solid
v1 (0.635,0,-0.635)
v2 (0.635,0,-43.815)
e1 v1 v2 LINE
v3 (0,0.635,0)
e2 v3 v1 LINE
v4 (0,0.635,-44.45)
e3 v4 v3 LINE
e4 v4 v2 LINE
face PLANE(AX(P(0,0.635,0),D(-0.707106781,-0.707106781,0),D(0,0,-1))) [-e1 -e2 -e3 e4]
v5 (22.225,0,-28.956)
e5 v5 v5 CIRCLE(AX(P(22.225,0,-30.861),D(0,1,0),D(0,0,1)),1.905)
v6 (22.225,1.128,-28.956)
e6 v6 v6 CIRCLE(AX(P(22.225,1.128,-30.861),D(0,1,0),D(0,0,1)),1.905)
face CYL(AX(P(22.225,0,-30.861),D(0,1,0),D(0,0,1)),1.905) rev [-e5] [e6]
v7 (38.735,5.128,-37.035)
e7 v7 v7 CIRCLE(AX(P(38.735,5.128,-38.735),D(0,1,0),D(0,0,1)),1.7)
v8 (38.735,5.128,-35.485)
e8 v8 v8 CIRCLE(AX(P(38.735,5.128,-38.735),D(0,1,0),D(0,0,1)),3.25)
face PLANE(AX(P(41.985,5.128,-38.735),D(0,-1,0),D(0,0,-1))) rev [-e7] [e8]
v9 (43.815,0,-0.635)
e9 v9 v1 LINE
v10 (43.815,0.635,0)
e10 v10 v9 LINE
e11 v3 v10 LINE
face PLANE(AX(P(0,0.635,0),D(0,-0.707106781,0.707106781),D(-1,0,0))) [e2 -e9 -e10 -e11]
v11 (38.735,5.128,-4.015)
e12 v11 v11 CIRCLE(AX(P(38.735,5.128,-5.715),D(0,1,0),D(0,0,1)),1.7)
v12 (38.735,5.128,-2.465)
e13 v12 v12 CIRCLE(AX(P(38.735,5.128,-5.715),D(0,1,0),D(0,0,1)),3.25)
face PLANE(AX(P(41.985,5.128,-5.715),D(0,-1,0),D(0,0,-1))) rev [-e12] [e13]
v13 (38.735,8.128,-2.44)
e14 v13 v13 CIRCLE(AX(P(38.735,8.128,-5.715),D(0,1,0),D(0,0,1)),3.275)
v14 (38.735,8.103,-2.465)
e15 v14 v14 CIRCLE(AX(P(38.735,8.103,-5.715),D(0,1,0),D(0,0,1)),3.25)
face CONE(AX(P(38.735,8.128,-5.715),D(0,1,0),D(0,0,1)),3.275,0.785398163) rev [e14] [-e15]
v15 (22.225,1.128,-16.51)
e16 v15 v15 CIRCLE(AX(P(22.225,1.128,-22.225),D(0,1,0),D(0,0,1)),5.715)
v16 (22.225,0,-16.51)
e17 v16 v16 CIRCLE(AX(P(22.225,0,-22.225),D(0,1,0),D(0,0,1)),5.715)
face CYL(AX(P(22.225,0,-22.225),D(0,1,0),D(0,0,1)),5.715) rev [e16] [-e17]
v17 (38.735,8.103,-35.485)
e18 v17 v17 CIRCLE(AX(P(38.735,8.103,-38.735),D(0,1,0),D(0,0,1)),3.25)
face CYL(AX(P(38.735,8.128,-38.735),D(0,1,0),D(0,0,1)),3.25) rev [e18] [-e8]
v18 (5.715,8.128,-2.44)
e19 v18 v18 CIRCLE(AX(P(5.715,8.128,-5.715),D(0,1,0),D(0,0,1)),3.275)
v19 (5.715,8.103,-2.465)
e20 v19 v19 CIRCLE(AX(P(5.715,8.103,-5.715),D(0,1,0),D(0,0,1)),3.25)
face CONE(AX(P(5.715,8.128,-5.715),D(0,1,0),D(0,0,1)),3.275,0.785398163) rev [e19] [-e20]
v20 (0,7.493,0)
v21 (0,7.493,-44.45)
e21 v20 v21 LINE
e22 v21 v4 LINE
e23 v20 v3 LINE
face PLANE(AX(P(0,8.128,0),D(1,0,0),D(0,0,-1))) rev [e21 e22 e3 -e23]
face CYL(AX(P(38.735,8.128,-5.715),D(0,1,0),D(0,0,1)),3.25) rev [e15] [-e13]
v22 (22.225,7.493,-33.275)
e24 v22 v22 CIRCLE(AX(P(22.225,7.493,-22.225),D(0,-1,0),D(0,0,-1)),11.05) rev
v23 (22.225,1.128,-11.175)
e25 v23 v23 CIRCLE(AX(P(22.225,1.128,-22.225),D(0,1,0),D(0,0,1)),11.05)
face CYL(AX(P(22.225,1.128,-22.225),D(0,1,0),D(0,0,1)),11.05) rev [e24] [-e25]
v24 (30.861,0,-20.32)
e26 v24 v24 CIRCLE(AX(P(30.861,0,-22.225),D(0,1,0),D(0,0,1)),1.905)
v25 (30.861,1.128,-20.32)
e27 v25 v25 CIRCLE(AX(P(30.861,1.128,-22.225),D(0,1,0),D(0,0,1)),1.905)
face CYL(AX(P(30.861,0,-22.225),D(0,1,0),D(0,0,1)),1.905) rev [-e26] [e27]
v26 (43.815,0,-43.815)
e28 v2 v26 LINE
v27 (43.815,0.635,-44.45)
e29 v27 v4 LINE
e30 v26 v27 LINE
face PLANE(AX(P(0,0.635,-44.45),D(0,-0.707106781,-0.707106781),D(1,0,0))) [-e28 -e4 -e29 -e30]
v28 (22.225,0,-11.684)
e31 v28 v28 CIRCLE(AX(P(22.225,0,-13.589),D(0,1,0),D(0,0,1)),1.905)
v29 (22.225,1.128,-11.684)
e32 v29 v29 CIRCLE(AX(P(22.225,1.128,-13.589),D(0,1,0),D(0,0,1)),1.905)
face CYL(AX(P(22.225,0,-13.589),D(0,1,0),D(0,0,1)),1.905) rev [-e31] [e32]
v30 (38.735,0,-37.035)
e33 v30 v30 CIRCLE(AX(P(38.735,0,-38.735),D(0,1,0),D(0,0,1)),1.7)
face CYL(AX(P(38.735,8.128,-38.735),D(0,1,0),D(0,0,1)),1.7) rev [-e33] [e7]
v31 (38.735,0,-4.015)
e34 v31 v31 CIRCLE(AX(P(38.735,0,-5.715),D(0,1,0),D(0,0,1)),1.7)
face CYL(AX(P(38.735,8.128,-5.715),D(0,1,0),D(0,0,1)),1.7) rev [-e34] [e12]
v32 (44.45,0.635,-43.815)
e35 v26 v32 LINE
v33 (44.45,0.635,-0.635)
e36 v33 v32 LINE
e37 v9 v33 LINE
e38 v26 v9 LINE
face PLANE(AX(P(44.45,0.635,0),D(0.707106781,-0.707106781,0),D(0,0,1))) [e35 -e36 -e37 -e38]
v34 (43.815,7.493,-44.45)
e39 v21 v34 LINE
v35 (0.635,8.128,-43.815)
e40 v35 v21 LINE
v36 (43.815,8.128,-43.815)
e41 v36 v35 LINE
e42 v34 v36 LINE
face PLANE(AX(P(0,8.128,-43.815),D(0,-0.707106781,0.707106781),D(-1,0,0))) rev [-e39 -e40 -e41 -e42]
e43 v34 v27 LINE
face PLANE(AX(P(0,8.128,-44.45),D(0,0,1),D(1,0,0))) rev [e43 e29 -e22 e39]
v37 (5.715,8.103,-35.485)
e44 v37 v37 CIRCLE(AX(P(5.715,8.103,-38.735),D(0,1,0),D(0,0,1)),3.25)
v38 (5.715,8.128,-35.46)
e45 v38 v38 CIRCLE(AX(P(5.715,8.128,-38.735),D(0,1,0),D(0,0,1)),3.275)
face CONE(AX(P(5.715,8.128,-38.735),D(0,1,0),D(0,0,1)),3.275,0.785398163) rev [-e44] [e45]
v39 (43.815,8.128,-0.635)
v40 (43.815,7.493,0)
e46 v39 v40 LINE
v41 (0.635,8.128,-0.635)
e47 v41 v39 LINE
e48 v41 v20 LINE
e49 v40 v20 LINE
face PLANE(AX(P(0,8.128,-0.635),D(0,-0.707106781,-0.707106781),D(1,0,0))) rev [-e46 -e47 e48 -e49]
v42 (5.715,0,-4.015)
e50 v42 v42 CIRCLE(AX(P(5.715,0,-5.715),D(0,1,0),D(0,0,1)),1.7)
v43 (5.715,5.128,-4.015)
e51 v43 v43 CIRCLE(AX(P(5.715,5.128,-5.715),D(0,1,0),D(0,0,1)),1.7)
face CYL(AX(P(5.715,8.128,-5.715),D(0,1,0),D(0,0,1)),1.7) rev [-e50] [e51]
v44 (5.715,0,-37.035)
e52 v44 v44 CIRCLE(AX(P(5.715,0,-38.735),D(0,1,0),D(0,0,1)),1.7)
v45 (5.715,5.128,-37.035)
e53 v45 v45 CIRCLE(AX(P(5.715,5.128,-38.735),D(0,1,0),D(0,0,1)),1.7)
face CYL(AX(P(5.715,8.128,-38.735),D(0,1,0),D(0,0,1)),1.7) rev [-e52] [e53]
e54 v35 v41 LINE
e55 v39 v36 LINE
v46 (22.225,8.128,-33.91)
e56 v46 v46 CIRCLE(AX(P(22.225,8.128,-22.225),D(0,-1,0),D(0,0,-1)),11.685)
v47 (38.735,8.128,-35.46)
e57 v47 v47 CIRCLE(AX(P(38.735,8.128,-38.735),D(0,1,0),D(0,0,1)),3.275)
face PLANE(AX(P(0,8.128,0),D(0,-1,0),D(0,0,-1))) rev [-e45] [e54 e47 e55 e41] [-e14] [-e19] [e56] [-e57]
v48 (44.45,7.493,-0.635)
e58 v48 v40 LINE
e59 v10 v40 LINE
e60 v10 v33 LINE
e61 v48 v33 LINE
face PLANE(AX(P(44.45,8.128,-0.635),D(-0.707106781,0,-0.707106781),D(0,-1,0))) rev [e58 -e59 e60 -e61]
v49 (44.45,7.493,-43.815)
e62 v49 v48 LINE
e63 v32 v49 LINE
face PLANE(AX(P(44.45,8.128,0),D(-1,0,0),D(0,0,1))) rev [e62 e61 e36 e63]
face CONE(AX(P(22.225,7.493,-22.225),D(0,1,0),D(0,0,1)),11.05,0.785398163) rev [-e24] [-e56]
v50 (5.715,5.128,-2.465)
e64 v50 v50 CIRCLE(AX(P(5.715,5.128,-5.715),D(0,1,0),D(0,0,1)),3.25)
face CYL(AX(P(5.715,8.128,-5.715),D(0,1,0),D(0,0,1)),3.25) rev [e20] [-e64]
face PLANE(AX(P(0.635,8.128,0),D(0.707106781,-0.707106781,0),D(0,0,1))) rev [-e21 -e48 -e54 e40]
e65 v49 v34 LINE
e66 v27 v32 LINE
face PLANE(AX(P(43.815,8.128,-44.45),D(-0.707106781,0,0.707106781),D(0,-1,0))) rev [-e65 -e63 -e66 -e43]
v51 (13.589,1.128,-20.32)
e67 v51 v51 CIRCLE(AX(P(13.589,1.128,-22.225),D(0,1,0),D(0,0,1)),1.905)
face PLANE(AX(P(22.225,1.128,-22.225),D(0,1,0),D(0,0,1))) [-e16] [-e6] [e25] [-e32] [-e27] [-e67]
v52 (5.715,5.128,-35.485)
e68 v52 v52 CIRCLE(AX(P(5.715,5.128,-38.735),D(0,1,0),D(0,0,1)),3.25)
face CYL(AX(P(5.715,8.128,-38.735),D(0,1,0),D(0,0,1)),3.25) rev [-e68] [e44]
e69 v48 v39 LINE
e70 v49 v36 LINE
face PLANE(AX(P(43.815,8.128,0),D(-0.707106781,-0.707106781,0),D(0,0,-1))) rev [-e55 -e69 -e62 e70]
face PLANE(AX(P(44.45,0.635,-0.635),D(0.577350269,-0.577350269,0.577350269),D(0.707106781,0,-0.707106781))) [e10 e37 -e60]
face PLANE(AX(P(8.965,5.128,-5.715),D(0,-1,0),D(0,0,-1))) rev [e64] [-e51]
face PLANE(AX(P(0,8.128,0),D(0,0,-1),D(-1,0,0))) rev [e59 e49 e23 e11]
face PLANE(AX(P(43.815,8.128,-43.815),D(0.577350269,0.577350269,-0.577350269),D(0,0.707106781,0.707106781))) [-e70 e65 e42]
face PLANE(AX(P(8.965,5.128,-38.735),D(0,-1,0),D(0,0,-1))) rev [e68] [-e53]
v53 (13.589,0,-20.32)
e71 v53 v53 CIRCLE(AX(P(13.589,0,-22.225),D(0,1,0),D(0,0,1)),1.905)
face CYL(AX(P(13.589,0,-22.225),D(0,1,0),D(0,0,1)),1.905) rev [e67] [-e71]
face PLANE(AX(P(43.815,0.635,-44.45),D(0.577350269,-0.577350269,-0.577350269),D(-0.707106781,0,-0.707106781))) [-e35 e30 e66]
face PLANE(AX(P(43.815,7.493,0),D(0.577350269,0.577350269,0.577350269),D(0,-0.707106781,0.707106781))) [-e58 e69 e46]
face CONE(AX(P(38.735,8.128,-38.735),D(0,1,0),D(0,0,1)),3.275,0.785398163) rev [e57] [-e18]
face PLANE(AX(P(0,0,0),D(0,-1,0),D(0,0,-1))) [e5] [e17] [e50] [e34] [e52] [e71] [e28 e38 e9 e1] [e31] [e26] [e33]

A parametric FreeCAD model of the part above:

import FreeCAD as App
import Part
import Sketcher

V = App.Vector
Q = App.Units.Quantity


def edges_at(feature, points):
    """Names of the edges that pass closest to the given points."""
    edges = feature.Shape.Edges
    near = lambda p: min(range(len(edges)), key=lambda i: edges[i].distToShape(Part.Vertex(*p))[0])
    return sorted({f"Edge{near(p) + 1}" for p in points})

doc = App.newDocument("Part")
params = doc.addObject("Spreadsheet::Sheet", "Params")
for row, (alias, value) in enumerate([
    ("sketch1_width", "1.75 in"),
    ("pad1_length", "0.32 in"),
    ("pocket1_length", "7 mm"),
    ("sketch3_diameter", "0.15 in"),
    ("sketch3_diameter2", "0.45 in"),
    ("sketch4_width", "0.32 in"),
    ("groove_angle", "360 deg"),
    ("linearpattern_pitch", "1.3 in"),
    ("linearpattern2_pitch", "46.697332 mm"),
    ("linearpattern3_pitch", "1.3 in"),
    ("chamfer_size", "0.025 in"),
    ("chamfer2_size", "0.025 in"),
], start=1):
    params.set(f"A{row}", alias)
    params.set(f"B{row}", "=" + value)
    params.setAlias(f"B{row}", alias)

body = doc.addObject("PartDesign::Body", "Body")

# Sketch on XZ plane
sketch1 = body.newObject("Sketcher::SketchObject", "Sketch")
sketch1.AttachmentSupport = (doc.getObject("XZ_Plane"), [""])
sketch1.MapMode = "FlatFace"
sketch1.addGeometry([
    Part.LineSegment(V(0, -44, 0), V(0, 0, 0)),
    Part.LineSegment(V(0, 0, 0), V(44, 0, 0)),
    Part.LineSegment(V(44, 0, 0), V(44, -44, 0)),
    Part.LineSegment(V(44, -44, 0), V(0, -44, 0)),
], False)
sketch1.addConstraint([
    Sketcher.Constraint("Coincident", 0, 2, 1, 1),
    Sketcher.Constraint("Coincident", 1, 2, 2, 1),
    Sketcher.Constraint("Coincident", 2, 2, 3, 1),
    Sketcher.Constraint("Coincident", 3, 2, 0, 1),
    Sketcher.Constraint("Vertical", 0),
    Sketcher.Constraint("Horizontal", 1),
    Sketcher.Constraint("Vertical", 2),
    Sketcher.Constraint("Horizontal", 3),
    Sketcher.Constraint("Coincident", 0, 2, -1, 1),
    Sketcher.Constraint("Equal", 3, 0),
    Sketcher.Constraint("DistanceX", 1, 1, 1, 2, Q("1.75 in")),
])
sketch1.setExpression("Constraints[10]", "Params.sketch1_width")
pad1 = body.newObject("PartDesign::Pad", "Pad")
pad1.Profile = sketch1
pad1.setExpression("Length", "Params.pad1_length")
pad1.Reversed = True

# Sketch on XZ plane
sketch2 = body.newObject("Sketcher::SketchObject", "Sketch001")
sketch2.AttachmentSupport = (doc.getObject("XZ_Plane"), [""])
sketch2.MapMode = "FlatFace"
sketch2.AttachmentOffset = App.Placement(V(0, 0, -0.32 * 25.4), App.Rotation())
sketch2.addGeometry(Part.Circle(V(22, -22, 0), V(0, 0, 1), 11), False)
sketch2.addConstraint([
    Sketcher.Constraint("Diameter", 0, Q("22.1 mm")),
    Sketcher.Constraint("DistanceX", -1, 1, 0, 3, Q("0.875 in")),
    Sketcher.Constraint("DistanceY", 0, 3, -1, 1, Q("0.875 in")),
])
pocket1 = body.newObject("PartDesign::Pocket", "Pocket")
pocket1.Profile = sketch2
pocket1.setExpression("Length", "Params.pocket1_length")
pocket1.Reversed = True

# Sketch on XZ plane
sketch3 = body.newObject("Sketcher::SketchObject", "Sketch002")
sketch3.AttachmentSupport = (doc.getObject("XZ_Plane"), [""])
sketch3.MapMode = "FlatFace"
sketch3.AttachmentOffset = App.Placement(V(0, 0, -1.128), App.Rotation())
sketch3.addGeometry([
    Part.Circle(V(22.2, -30.9, 0), V(0, 0, 1), 1.9),  # 0
    Part.Circle(V(30.9, -22.2, 0), V(0, 0, 1), 1.9),  # 1
    Part.Circle(V(22.2, -13.6, 0), V(0, 0, 1), 1.9),  # 2
    Part.Circle(V(13.6, -22.2, 0), V(0, 0, 1), 1.9),  # 3
    Part.Circle(V(22.2, -22.2, 0), V(0, 0, 1), 5.7),  # 4
], False)
sketch3.addConstraint([
    Sketcher.Constraint("Equal", 0, 1),
    Sketcher.Constraint("Equal", 1, 2),
    Sketcher.Constraint("Equal", 2, 3),
    Sketcher.Constraint("Horizontal", 1, 3, 3, 3),
    Sketcher.Constraint("Horizontal", 3, 3, 4, 3),
    Sketcher.Constraint("Vertical", 0, 3, 2, 3),
    Sketcher.Constraint("Vertical", 2, 3, 4, 3),
    Sketcher.Constraint("Diameter", 0, Q("0.15 in")),
    Sketcher.Constraint("Diameter", 4, Q("0.45 in")),
    Sketcher.Constraint("DistanceX", 0, 3, 1, 3, Q("0.34 in")),
    Sketcher.Constraint("DistanceY", 0, 3, 1, 3, Q("0.34 in")),
    Sketcher.Constraint("DistanceY", 1, 3, 2, 3, Q("0.34 in")),
    Sketcher.Constraint("DistanceX", 3, 3, 0, 3, Q("0.34 in")),
    Sketcher.Constraint("DistanceX", -1, 1, 0, 3, Q("0.875 in")),
    Sketcher.Constraint("DistanceY", 0, 3, -1, 1, Q("1.215 in")),
])
sketch3.setExpression("Constraints[7]", "Params.sketch3_diameter")
sketch3.setExpression("Constraints[8]", "Params.sketch3_diameter2")
pocket2 = body.newObject("PartDesign::Pocket", "Pocket001")
pocket2.Profile = sketch3
pocket2.Type = "ThroughAll"
pocket2.Reversed = True

# Sketch on YZ plane
sketch4 = body.newObject("Sketcher::SketchObject", "Sketch003")
sketch4.AttachmentSupport = (doc.getObject("YZ_Plane"), [""])
sketch4.MapMode = "FlatFace"
sketch4.AttachmentOffset = App.Placement(V(0, 0, 0.225 * 25.4), App.Rotation())
sketch4.addGeometry([
    Part.LineSegment(V(0, -38.735, 0), V(8.128, -38.735, 0)),  # 0
    Part.LineSegment(V(8.128, -38.735, 0), V(8.128, -35.46, 0)),  # 1
    Part.LineSegment(V(8.128, -35.46, 0), V(8.103, -35.485, 0)),  # 2
    Part.LineSegment(V(8.103, -35.485, 0), V(5.128, -35.485, 0)),  # 3
    Part.LineSegment(V(5.128, -35.485, 0), V(5.128, -37.035, 0)),  # 4
    Part.LineSegment(V(5.128, -37.035, 0), V(0, -37.035, 0)),  # 5
    Part.LineSegment(V(0, -37.035, 0), V(0, -38.735, 0)),  # 6
], False)
sketch4.addGeometry(Part.LineSegment(V(8.128, -38.735, 0), V(0, -38.735, 0)), True)  # axis
sketch4.addConstraint([
    Sketcher.Constraint("Coincident", 0, 2, 1, 1),
    Sketcher.Constraint("Coincident", 1, 2, 2, 1),
    Sketcher.Constraint("Coincident", 2, 2, 3, 1),
    Sketcher.Constraint("Coincident", 3, 2, 4, 1),
    Sketcher.Constraint("Coincident", 4, 2, 5, 1),
    Sketcher.Constraint("Coincident", 5, 2, 6, 1),
    Sketcher.Constraint("Coincident", 6, 2, 0, 1),
    Sketcher.Constraint("Horizontal", 0),
    Sketcher.Constraint("Vertical", 1),
    Sketcher.Constraint("Horizontal", 3),
    Sketcher.Constraint("Vertical", 4),
    Sketcher.Constraint("Horizontal", 5),
    Sketcher.Constraint("Vertical", 6),
    Sketcher.Constraint("Horizontal", 7),
    Sketcher.Constraint("Coincident", 7, 1, 0, 2),
    Sketcher.Constraint("PointOnObject", 5, 2, -2),
    Sketcher.Constraint("PointOnObject", 7, 2, -2),
    Sketcher.Constraint("Angle", 2, Q("-135 deg")),
    Sketcher.Constraint("DistanceX", 0, 1, 0, 2, Q("0.32 in")),
    Sketcher.Constraint("DistanceY", 0, 2, -1, 1, Q("1.525 in")),
    Sketcher.Constraint("DistanceX", 3, 2, 3, 1, Q("2.975 mm")),
    Sketcher.Constraint("DistanceX", 5, 2, 5, 1, Q("5.128 mm")),
    Sketcher.Constraint("DistanceY", 1, 1, 1, 2, Q("3.275 mm")),
    Sketcher.Constraint("DistanceY", 4, 2, 4, 1, Q("1.55 mm")),
])
sketch4.setExpression("Constraints[18]", "Params.sketch4_width")
groove = body.newObject("PartDesign::Groove", "Groove")
groove.Profile = sketch4
groove.ReferenceAxis = (sketch4, ["Axis0"])
groove.setExpression("Angle", "Params.groove_angle")
doc.recompute()

linearpattern = body.newObject("PartDesign::LinearPattern", "LinearPattern")
linearpattern.Originals = [groove]
linearpattern.Direction = (doc.getObject("X_Axis"), [""])
linearpattern.Mode = "offset"
linearpattern.setExpression("Offset", "Params.linearpattern_pitch")
linearpattern.Occurrences = 2
body.Tip = linearpattern
doc.recompute()

datumline = body.newObject("PartDesign::Line", "DatumLine")
datumline.Placement = App.Placement(V(0, 0, 0), App.Rotation(V(0, 0, 1), V(0.707106781, 0, 0.707106781)))
linearpattern2 = body.newObject("PartDesign::LinearPattern", "LinearPattern001")
linearpattern2.Originals = [groove]
linearpattern2.Direction = (datumline, [""])
linearpattern2.Mode = "offset"
linearpattern2.setExpression("Offset", "Params.linearpattern2_pitch")
linearpattern2.Occurrences = 2
body.Tip = linearpattern2
doc.recompute()

linearpattern3 = body.newObject("PartDesign::LinearPattern", "LinearPattern002")
linearpattern3.Originals = [groove]
linearpattern3.Direction = (doc.getObject("Z_Axis"), [""])
linearpattern3.Mode = "offset"
linearpattern3.setExpression("Offset", "Params.linearpattern3_pitch")
linearpattern3.Occurrences = 2
body.Tip = linearpattern3
doc.recompute()

chamfer = body.newObject("PartDesign::Chamfer", "Chamfer")
chamfer.Base = (linearpattern3, edges_at(linearpattern3, [
    (44.45, 8.128, -22.225),
    (22.225, 8.128, -44.45),
    (0, 8.128, -22.225),
    (22.225, 0, -44.45),
    (44.45, 0, -22.225),
    (22.225, 0, 0),
    (0, 0, -22.225),
    (44.45, 4.064, -44.45),
    (44.45, 4.064, 0),
    (22.225, 8.128, 0),
]))
chamfer.setExpression("Size", "Params.chamfer_size")
doc.recompute()

chamfer2 = body.newObject("PartDesign::Chamfer", "Chamfer001")
chamfer2.Base = (chamfer, edges_at(chamfer, [(22.225, 8.128, -33.275)]))
chamfer2.setExpression("Size", "Params.chamfer2_size")

doc.recompute()
